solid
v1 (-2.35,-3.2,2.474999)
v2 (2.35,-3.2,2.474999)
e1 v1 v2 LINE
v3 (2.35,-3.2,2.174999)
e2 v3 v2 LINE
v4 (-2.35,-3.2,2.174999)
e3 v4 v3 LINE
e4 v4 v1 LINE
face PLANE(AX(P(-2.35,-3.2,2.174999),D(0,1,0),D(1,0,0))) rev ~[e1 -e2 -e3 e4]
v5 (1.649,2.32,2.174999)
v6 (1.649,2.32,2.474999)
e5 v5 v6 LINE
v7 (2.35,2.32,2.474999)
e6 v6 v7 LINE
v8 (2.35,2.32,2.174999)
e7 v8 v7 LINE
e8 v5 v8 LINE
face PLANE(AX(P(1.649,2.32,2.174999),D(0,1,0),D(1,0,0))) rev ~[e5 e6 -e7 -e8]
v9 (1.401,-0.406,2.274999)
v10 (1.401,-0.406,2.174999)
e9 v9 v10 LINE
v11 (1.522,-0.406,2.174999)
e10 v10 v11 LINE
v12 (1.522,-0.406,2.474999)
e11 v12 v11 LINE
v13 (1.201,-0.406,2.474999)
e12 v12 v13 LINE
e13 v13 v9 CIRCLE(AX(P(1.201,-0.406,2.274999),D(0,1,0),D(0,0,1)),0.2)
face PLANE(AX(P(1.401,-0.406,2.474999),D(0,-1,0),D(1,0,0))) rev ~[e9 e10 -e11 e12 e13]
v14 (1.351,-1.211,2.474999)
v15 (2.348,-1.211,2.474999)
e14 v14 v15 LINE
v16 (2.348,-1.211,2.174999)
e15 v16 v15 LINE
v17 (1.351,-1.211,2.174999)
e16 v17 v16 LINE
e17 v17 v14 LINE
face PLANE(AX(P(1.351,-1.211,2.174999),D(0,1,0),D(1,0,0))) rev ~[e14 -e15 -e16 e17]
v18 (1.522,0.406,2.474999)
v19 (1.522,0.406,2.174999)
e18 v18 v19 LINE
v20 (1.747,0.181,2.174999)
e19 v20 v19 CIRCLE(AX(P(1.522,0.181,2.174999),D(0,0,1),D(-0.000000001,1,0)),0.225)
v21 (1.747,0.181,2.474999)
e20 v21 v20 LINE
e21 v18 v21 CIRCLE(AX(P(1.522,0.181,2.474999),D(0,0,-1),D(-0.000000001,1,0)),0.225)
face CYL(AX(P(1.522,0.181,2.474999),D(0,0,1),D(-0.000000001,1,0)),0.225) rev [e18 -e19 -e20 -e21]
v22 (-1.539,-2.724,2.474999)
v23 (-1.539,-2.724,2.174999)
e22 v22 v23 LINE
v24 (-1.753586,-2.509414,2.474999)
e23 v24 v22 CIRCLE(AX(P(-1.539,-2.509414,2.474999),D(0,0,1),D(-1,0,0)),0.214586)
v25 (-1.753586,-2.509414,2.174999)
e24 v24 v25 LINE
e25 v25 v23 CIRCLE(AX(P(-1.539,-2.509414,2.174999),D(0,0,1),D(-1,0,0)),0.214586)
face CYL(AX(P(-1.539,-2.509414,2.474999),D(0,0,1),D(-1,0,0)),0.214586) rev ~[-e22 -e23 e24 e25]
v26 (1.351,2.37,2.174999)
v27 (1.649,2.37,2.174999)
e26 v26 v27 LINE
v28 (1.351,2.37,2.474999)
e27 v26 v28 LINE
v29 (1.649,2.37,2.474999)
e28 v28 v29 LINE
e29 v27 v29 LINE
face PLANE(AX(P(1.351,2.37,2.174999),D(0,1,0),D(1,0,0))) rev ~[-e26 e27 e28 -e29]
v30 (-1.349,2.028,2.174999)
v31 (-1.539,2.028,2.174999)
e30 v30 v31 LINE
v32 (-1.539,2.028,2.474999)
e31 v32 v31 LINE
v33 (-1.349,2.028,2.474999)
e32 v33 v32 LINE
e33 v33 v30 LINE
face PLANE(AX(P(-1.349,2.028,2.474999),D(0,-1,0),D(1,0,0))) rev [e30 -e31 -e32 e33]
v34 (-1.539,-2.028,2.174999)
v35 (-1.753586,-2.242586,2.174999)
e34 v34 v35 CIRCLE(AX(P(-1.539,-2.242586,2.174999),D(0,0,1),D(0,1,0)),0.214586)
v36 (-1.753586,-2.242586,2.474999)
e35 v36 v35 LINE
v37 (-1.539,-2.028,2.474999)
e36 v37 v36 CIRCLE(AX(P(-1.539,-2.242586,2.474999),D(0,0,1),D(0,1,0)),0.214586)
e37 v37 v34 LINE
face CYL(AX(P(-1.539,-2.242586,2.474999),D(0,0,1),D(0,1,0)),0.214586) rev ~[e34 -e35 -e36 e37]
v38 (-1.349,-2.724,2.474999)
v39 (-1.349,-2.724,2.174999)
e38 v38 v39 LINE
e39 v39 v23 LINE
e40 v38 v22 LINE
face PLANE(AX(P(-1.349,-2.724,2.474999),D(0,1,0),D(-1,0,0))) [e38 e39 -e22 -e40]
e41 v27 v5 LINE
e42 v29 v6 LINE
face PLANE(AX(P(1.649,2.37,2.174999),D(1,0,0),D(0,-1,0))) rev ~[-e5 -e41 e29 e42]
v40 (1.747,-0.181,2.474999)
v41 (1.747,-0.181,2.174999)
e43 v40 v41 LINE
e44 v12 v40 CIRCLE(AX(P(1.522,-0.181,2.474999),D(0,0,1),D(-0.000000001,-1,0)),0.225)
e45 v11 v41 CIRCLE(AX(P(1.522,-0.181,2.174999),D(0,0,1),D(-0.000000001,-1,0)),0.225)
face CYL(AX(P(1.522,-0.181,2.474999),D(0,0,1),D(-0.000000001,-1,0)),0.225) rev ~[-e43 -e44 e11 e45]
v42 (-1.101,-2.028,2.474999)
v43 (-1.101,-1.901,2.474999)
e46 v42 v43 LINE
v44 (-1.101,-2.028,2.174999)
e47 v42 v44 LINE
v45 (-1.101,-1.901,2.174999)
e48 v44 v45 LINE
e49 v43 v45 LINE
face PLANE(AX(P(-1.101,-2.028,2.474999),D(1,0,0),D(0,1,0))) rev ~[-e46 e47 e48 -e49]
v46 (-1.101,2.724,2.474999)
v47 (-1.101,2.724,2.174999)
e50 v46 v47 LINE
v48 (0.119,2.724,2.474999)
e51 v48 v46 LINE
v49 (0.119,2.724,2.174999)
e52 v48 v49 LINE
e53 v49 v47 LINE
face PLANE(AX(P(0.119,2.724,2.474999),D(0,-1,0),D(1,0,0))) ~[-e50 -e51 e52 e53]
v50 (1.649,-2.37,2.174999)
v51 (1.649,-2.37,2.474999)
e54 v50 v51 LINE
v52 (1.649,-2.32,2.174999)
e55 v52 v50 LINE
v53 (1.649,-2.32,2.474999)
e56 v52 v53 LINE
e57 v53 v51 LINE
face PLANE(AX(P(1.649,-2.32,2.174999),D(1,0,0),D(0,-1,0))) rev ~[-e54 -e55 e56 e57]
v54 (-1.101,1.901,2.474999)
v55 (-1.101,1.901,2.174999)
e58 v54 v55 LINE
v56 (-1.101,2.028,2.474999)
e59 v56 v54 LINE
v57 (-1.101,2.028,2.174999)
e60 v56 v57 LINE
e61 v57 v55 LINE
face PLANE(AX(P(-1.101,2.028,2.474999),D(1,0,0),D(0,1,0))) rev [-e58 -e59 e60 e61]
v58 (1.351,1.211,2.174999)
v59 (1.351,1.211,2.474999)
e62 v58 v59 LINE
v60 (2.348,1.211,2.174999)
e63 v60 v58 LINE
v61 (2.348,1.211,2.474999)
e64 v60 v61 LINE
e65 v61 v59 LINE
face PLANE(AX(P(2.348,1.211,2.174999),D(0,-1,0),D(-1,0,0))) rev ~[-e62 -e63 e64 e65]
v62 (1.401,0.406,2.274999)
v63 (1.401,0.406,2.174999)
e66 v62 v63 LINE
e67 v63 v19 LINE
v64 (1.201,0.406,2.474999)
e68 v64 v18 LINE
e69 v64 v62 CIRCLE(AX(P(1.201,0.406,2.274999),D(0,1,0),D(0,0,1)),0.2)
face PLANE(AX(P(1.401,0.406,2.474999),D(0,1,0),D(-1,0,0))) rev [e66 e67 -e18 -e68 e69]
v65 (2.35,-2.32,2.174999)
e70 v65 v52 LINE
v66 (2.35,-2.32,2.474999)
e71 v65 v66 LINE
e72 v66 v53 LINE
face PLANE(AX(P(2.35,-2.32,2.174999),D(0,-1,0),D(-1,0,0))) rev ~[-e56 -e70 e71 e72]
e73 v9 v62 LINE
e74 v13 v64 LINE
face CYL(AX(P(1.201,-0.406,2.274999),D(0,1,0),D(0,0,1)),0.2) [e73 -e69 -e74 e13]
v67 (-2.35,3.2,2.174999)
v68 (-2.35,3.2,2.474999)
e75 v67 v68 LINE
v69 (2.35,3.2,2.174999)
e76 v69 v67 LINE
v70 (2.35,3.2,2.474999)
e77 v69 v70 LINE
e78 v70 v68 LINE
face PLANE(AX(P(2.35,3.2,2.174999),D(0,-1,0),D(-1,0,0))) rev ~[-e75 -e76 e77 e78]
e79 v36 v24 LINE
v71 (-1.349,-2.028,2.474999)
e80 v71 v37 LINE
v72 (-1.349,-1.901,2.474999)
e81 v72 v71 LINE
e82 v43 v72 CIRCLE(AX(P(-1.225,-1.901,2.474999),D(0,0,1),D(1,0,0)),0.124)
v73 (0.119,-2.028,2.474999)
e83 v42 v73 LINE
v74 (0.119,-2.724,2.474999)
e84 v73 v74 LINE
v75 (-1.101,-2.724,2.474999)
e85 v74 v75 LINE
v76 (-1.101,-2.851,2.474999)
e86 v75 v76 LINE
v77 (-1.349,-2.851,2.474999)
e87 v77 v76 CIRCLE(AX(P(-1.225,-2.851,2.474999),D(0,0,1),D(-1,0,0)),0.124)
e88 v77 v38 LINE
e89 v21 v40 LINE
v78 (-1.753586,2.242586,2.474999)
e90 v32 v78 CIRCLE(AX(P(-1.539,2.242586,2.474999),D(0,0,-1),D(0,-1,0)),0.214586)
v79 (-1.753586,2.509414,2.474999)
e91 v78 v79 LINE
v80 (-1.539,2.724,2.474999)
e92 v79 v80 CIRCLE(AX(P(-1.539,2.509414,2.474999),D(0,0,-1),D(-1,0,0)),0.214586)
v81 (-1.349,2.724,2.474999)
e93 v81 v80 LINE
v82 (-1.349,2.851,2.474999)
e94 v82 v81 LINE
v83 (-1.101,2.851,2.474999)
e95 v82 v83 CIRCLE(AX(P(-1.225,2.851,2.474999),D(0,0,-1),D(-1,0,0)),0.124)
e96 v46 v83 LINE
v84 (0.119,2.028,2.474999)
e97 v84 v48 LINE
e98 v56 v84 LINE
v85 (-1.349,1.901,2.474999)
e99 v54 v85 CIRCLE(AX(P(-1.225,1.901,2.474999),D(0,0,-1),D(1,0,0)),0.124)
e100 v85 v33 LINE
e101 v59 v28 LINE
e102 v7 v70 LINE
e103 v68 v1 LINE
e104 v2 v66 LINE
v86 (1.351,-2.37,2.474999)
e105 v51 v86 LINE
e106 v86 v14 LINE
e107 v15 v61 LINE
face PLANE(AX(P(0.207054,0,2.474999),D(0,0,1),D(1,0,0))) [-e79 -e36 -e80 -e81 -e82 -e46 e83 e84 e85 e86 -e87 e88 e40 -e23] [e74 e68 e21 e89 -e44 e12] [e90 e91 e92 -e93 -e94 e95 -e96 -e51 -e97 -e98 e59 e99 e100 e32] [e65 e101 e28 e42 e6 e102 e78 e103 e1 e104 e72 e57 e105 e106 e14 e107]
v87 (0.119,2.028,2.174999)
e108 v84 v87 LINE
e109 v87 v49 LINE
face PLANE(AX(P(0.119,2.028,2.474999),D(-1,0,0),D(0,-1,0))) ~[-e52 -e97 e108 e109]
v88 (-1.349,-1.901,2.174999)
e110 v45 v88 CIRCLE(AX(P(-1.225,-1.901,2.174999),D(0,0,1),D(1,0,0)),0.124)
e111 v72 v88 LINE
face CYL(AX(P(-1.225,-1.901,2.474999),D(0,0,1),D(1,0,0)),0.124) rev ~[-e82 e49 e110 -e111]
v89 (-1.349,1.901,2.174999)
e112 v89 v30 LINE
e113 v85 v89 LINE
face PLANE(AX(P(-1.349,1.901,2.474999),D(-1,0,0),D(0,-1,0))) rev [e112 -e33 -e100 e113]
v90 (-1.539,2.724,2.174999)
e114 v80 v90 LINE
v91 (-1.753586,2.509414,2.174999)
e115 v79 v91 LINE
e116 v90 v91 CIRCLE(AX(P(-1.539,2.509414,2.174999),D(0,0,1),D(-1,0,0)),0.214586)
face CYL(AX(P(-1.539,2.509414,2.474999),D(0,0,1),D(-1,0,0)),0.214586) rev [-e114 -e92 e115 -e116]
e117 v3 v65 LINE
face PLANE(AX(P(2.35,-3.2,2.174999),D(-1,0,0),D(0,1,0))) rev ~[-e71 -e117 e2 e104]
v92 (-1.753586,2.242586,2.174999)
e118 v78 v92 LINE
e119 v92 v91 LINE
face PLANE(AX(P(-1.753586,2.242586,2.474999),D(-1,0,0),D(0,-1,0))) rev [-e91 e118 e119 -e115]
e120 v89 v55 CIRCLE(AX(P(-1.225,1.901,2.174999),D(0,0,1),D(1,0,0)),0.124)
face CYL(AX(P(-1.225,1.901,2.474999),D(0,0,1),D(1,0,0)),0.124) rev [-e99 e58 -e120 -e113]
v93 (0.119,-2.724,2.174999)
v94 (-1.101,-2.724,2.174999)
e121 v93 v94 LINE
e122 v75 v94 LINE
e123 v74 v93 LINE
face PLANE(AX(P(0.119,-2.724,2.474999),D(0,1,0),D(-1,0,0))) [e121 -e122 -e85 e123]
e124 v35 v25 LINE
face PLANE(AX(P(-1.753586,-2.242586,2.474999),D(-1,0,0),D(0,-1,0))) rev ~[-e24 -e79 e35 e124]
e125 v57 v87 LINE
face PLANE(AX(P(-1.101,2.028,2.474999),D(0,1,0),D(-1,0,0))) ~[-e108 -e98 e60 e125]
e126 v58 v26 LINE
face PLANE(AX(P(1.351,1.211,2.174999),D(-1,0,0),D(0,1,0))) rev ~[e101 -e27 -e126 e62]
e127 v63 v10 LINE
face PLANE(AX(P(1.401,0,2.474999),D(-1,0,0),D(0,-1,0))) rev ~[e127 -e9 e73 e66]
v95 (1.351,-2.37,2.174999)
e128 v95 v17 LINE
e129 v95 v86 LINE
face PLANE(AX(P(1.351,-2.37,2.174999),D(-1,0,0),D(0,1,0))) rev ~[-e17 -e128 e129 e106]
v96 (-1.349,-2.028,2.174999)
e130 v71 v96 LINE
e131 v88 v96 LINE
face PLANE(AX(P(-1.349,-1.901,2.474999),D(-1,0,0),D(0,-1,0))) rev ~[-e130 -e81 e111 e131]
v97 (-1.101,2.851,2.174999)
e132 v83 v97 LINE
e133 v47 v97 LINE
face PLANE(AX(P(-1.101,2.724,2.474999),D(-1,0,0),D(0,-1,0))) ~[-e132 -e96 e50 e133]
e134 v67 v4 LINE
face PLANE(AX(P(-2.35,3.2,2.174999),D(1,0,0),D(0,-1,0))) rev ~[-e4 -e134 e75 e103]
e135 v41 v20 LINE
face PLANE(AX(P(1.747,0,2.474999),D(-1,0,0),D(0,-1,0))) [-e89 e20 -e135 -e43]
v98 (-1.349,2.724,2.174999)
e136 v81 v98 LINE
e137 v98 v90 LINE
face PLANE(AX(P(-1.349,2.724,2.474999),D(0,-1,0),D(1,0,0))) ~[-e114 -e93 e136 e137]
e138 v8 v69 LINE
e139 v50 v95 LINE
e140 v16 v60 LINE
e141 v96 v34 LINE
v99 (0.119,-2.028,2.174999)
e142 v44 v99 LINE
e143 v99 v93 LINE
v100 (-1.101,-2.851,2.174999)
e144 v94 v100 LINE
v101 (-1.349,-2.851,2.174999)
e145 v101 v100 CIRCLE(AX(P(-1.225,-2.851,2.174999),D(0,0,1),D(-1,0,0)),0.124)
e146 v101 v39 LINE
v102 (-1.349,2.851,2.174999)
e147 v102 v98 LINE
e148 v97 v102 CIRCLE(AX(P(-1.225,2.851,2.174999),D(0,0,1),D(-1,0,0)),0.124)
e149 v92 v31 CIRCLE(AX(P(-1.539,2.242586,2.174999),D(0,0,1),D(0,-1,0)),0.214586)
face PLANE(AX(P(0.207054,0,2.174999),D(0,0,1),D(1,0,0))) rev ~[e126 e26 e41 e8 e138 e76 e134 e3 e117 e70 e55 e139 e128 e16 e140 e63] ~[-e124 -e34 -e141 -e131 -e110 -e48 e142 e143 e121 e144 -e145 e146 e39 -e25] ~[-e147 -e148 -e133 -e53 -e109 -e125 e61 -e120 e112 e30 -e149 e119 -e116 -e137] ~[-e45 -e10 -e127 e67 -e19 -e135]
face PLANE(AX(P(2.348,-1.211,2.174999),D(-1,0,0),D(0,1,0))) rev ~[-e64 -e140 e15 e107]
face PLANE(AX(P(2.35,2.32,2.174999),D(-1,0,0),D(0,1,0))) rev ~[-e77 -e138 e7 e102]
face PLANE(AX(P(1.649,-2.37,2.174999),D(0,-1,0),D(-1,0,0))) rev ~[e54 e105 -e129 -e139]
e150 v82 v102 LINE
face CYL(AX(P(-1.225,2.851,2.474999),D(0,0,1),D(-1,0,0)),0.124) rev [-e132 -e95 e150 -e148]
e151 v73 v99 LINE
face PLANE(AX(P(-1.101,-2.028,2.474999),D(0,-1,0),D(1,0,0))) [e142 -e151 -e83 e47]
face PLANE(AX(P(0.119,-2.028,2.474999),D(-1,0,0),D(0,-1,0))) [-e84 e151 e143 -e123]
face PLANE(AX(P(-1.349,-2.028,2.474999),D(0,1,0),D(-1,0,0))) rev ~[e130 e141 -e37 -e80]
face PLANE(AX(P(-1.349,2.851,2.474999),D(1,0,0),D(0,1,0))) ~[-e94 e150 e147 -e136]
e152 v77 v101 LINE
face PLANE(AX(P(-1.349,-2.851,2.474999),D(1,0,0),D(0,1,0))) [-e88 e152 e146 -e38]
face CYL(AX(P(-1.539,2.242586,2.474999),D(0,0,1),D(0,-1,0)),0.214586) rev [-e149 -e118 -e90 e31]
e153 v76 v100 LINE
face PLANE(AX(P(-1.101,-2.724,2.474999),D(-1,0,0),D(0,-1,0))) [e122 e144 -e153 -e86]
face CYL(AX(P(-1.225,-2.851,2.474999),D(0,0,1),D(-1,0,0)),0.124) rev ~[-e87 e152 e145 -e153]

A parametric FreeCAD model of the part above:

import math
import FreeCAD as App
import Part
import Sketcher

V = App.Vector


def edges_at(feature, points):
    """Names of the edges that pass closest to the given points."""
    edges = feature.Shape.Edges
    near = lambda p: min(range(len(edges)), key=lambda i: edges[i].distToShape(Part.Vertex(*p))[0])
    return sorted({f"Edge{near(p) + 1}" for p in points})


def add_polygon(sketch, points):
    """Adds a closed chain of lines whose ends are joined by coincident constraints."""
    first, n = sketch.GeometryCount, len(points)
    for a, b in zip(points, points[1:] + points[:1]):
        sketch.addGeometry(Part.LineSegment(App.Vector(*a, 0), App.Vector(*b, 0)), False)
    for i in range(n):
        sketch.addConstraint(Sketcher.Constraint("Coincident", first + i, 2, first + (i + 1) % n, 1))

doc = App.newDocument("Part")
body = doc.addObject("PartDesign::Body", "Body")

# Sketch on XY plane
sketch1 = body.newObject("Sketcher::SketchObject", "Sketch")
sketch1.AttachmentSupport = (doc.getObject("XY_Plane"), [""])
sketch1.MapMode = "FlatFace"
sketch1.AttachmentOffset = App.Placement(V(0, 0, 2.174999), App.Rotation())
add_polygon(sketch1, [(-2.35, 3.2), (-2.35, -3.2), (2.35, -3.2), (2.35, -2.32), (1.649, -2.32), (1.649, -2.37), (1.351, -2.37), (1.351, -1.211), (2.348, -1.211), (2.348, 1.211), (1.351, 1.211), (1.351, 2.37), (1.649, 2.37), (1.649, 2.32), (2.35, 2.32), (2.35, 3.2)])  # lines 0-15
sketch1.addConstraint([
    Sketcher.Constraint("Vertical", 0),
    Sketcher.Constraint("Horizontal", 1),
    Sketcher.Constraint("Vertical", 2),
    Sketcher.Constraint("Horizontal", 3),
    Sketcher.Constraint("Vertical", 4),
    Sketcher.Constraint("Horizontal", 5),
    Sketcher.Constraint("Vertical", 6),
    Sketcher.Constraint("Horizontal", 7),
    Sketcher.Constraint("Vertical", 8),
    Sketcher.Constraint("Horizontal", 9),
    Sketcher.Constraint("Vertical", 10),
    Sketcher.Constraint("Horizontal", 11),
    Sketcher.Constraint("Vertical", 12),
    Sketcher.Constraint("Horizontal", 13),
    Sketcher.Constraint("Vertical", 14),
    Sketcher.Constraint("Horizontal", 15),
    Sketcher.Constraint("Symmetric", 0, 2, 14, 2, -1, 1),
    Sketcher.Constraint("Symmetric", 6, 2, 9, 2, -1),
    Sketcher.Constraint("Symmetric", 4, 2, 11, 2, -1),
    Sketcher.Constraint("Symmetric", 2, 2, 13, 2, -1),
    Sketcher.Constraint("DistanceX", 1, 1, 1, 2, 4.7),
    Sketcher.Constraint("DistanceY", 0, 2, 0, 1, 6.4),
    Sketcher.Constraint("DistanceY", 2, 1, 2, 2, 0.88),
    Sketcher.Constraint("DistanceY", 4, 2, 4, 1, 0.05),
    Sketcher.Constraint("DistanceX", 3, 2, 3, 1, 0.701),
    Sketcher.Constraint("DistanceX", 5, 2, 5, 1, 0.298),
    Sketcher.Constraint("DistanceX", 7, 1, 7, 2, 0.997),
    Sketcher.Constraint("DistanceY", 6, 1, 6, 2, 1.159),
])
pad1 = body.newObject("PartDesign::Pad", "Pad")
pad1.Profile = sketch1
pad1.Length = 0.3

# Sketch on XY plane
sketch2 = body.newObject("Sketcher::SketchObject", "Sketch001")
sketch2.AttachmentSupport = (doc.getObject("XY_Plane"), [""])
sketch2.MapMode = "FlatFace"
sketch2.AttachmentOffset = App.Placement(V(0, 0, 2.474999), App.Rotation())
sketch2.addGeometry([
    Part.LineSegment(V(0.119, -2.028, 0), V(-1.101, -2.028, 0)),  # 0
    Part.LineSegment(V(-1.101, -2.028, 0), V(-1.101, -1.901, 0)),  # 1
    Part.ArcOfCircle(Part.Circle(V(-1.225, -1.901, 0), V(0, 0, 1), 0.124), math.radians(0), math.radians(180)),  # 2
    Part.LineSegment(V(-1.349, -1.901, 0), V(-1.349, -2.028, 0)),  # 3
    Part.LineSegment(V(-1.349, -2.028, 0), V(-1.539, -2.028, 0)),  # 4
    Part.ArcOfCircle(Part.Circle(V(-1.539, -2.242586, 0), V(0, 0, 1), 0.214586), math.radians(90), math.radians(180)),  # 5
    Part.LineSegment(V(-1.753586, -2.242586, 0), V(-1.753586, -2.509414, 0)),  # 6
    Part.ArcOfCircle(Part.Circle(V(-1.539, -2.509414, 0), V(0, 0, 1), 0.214586), math.radians(180), math.radians(270)),  # 7
    Part.LineSegment(V(-1.539, -2.724, 0), V(-1.349, -2.724, 0)),  # 8
    Part.LineSegment(V(-1.349, -2.724, 0), V(-1.349, -2.851, 0)),  # 9
    Part.ArcOfCircle(Part.Circle(V(-1.225, -2.851, 0), V(0, 0, 1), 0.124), math.radians(180), math.radians(360)),  # 10
    Part.LineSegment(V(-1.101, -2.851, 0), V(-1.101, -2.724, 0)),  # 11
    Part.LineSegment(V(-1.101, -2.724, 0), V(0.119, -2.724, 0)),  # 12
    Part.LineSegment(V(0.119, -2.724, 0), V(0.119, -2.028, 0)),  # 13
    Part.LineSegment(V(1.401, 0, 0), V(1.401, -0.406, 0)),  # 14
    Part.LineSegment(V(1.401, -0.406, 0), V(1.522, -0.406, 0)),  # 15
    Part.ArcOfCircle(Part.Circle(V(1.522, -0.181, 0), V(0, 0, 1), 0.225), math.radians(-90), math.radians(0)),  # 16
    Part.LineSegment(V(1.747, -0.181, 0), V(1.747, 0, 0)),  # 17
    Part.LineSegment(V(1.747, 0, 0), V(1.401, 0, 0)),  # 18
], False)
sketch2.addConstraint([
    Sketcher.Constraint("Coincident", 0, 2, 1, 1),
    Sketcher.Constraint("Tangent", 1, 2, 2, 1),
    Sketcher.Constraint("Tangent", 2, 2, 3, 1),
    Sketcher.Constraint("Coincident", 3, 2, 4, 1),
    Sketcher.Constraint("Tangent", 4, 2, 5, 1),
    Sketcher.Constraint("Tangent", 5, 2, 6, 1),
    Sketcher.Constraint("Tangent", 6, 2, 7, 1),
    Sketcher.Constraint("Tangent", 7, 2, 8, 1),
    Sketcher.Constraint("Coincident", 8, 2, 9, 1),
    Sketcher.Constraint("Tangent", 9, 2, 10, 1),
    Sketcher.Constraint("Tangent", 10, 2, 11, 1),
    Sketcher.Constraint("Coincident", 11, 2, 12, 1),
    Sketcher.Constraint("Coincident", 12, 2, 13, 1),
    Sketcher.Constraint("Coincident", 13, 2, 0, 1),
    Sketcher.Constraint("Coincident", 14, 2, 15, 1),
    Sketcher.Constraint("Tangent", 15, 2, 16, 1),
    Sketcher.Constraint("Tangent", 16, 2, 17, 1),
    Sketcher.Constraint("Coincident", 17, 2, 18, 1),
    Sketcher.Constraint("Coincident", 18, 2, 14, 1),
    Sketcher.Constraint("Horizontal", 0),
    Sketcher.Constraint("Vertical", 1),
    Sketcher.Constraint("Vertical", 3),
    Sketcher.Constraint("Horizontal", 4),
    Sketcher.Constraint("Vertical", 6),
    Sketcher.Constraint("Horizontal", 8),
    Sketcher.Constraint("Vertical", 9),
    Sketcher.Constraint("Vertical", 11),
    Sketcher.Constraint("Horizontal", 12),
    Sketcher.Constraint("Vertical", 13),
    Sketcher.Constraint("Vertical", 14),
    Sketcher.Constraint("Horizontal", 15),
    Sketcher.Constraint("Vertical", 17),
    Sketcher.Constraint("Horizontal", 18),
    Sketcher.Constraint("Equal", 5, 7),
    Sketcher.Constraint("Equal", 2, 10),
    Sketcher.Constraint("PointOnObject", 17, 2, -1),
    Sketcher.Constraint("Horizontal", 0, 2, 3, 2),
    Sketcher.Constraint("Horizontal", 8, 2, 11, 2),
    Sketcher.Constraint("Vertical", 2, 3, 10, 3),
    Sketcher.Constraint("Equal", 3, 9),
    Sketcher.Constraint("Radius", 2, 0.124),
    Sketcher.Constraint("Radius", 16, 0.225),
    Sketcher.Constraint("DistanceX", 0, 2, 0, 1, 1.22),
    Sketcher.Constraint("DistanceX", 4, 2, 4, 1, 0.19),
    Sketcher.Constraint("DistanceX", 15, 1, 15, 2, 0.121),
    Sketcher.Constraint("DistanceY", 1, 1, 1, 2, 0.127),
    Sketcher.Constraint("DistanceY", 13, 1, 13, 2, 0.696),
    Sketcher.Constraint("DistanceY", 14, 2, 14, 1, 0.406),
    Sketcher.Constraint("DistanceY", 2, 3, 16, 3, 1.72),
    Sketcher.Constraint("DistanceX", 2, 3, -1, 1, 1.225),
    Sketcher.Constraint("DistanceX", -1, 1, 16, 3, 1.522),
    Sketcher.Constraint("Radius", 5, 0.214586),
])
pocket1 = body.newObject("PartDesign::Pocket", "Pocket")
pocket1.Profile = sketch2
pocket1.Type = "ThroughAll"
doc.recompute()

datumplane = body.newObject("PartDesign::Plane", "DatumPlane")
datumplane.AttachmentSupport = (doc.getObject("XZ_Plane"), [""])
datumplane.MapMode = "FlatFace"
datumplane.AttachmentOffset = App.Placement(V(0, 0, 0), App.Rotation())
mirrored = body.newObject("PartDesign::Mirrored", "Mirrored")
mirrored.Originals = [pocket1]
mirrored.MirrorPlane = (datumplane, [""])
body.Tip = mirrored
doc.recompute()

fillet = body.newObject("PartDesign::Fillet", "Fillet")
fillet.Base = (mirrored, edges_at(mirrored, [(1.401, 0, 2.475)]))
fillet.Radius = 0.2

doc.recompute()
